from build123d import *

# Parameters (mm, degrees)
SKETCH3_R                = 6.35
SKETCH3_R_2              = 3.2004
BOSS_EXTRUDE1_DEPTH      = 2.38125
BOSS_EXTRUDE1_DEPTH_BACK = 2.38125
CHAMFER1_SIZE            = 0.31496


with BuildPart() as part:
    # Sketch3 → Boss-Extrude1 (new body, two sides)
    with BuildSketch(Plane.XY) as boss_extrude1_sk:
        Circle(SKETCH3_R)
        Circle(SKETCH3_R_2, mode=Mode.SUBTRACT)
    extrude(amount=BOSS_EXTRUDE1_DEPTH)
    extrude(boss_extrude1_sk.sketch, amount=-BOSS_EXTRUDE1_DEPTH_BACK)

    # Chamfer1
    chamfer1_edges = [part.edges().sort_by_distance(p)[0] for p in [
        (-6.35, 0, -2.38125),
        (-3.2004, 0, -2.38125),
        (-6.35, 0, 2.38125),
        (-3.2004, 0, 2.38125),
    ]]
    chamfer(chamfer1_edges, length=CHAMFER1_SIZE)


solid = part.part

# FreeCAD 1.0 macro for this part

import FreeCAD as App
import Part
import Sketcher
from FreeCAD import Vector
Q = App.Units.Quantity


def edges_at(feature, points):
    """Names of the edges that pass closest to the given points."""
    edges = feature.Shape.Edges
    near = lambda p: min(range(len(edges)), key=lambda i: edges[i].distToShape(Part.Vertex(*p))[0])
    return sorted({f"Edge{near(p) + 1}" for p in points})

doc = App.newDocument("Part")
body = doc.addObject("PartDesign::Body", "Body")

# Sketch on XY plane
sketch1 = doc.addObject("Sketcher::SketchObject", "Sketch")
body.addObject(sketch1)
sketch1.AttachmentSupport = (doc.XY_Plane, [""])
sketch1.MapMode = "FlatFace"
sketch1.addGeometry(Part.Circle(Vector(0, 0, 0), Vector(0, 0, 1), 6.3), False)
sketch1.addGeometry(Part.Circle(Vector(0, 0, 0), Vector(0, 0, 1), 3.2), False)
sketch1.addConstraint(Sketcher.Constraint("Coincident", 0, 3, -1, 1))
sketch1.addConstraint(Sketcher.Constraint("Coincident", 1, 3, -1, 1))
sketch1.addConstraint(Sketcher.Constraint("Diameter", 0, Q("0.5 in")))
sketch1.addConstraint(Sketcher.Constraint("Diameter", 1, Q("0.252 in")))
pad1 = doc.addObject("PartDesign::Pad", "Pad")
body.addObject(pad1)
pad1.Profile = sketch1
pad1.Type = "TwoLengths"
pad1.Length = Q("0.09375 in")
pad1.Length2 = Q("0.09375 in")
doc.recompute()

chamfer = doc.addObject("PartDesign::Chamfer", "Chamfer")
body.addObject(chamfer)
chamfer.Base = (pad1, edges_at(pad1, [
    (-6.35, 0, -2.381),
    (-3.2, 0, -2.381),
    (-6.35, 0, 2.381),
    (-3.2, 0, 2.381),
]))
chamfer.Size = Q("0.0124 in")

doc.recompute()
